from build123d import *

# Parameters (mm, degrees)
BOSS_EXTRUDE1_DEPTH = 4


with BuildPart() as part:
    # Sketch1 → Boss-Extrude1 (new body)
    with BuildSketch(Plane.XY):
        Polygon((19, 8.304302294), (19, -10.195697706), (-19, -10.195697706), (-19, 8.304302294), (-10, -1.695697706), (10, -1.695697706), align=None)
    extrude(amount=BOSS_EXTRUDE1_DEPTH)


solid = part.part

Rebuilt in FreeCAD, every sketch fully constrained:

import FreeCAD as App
import Part
import Sketcher
from FreeCAD import Vector


def add_polygon(sketch, points):
    """Adds a closed chain of lines whose ends are joined by coincident constraints."""
    first, n = sketch.GeometryCount, len(points)
    for a, b in zip(points, points[1:] + points[:1]):
        sketch.addGeometry(Part.LineSegment(App.Vector(*a, 0), App.Vector(*b, 0)), False)
    for i in range(n):
        sketch.addConstraint(Sketcher.Constraint("Coincident", first + i, 2, first + (i + 1) % n, 1))

doc = App.newDocument("Part")
body = doc.addObject("PartDesign::Body", "Body")

# Sketch on XY plane
sketch1 = body.newObject("Sketcher::SketchObject", "Sketch")
sketch1.AttachmentSupport = (doc.getObject("XY_Plane"), [""])
sketch1.MapMode = "FlatFace"
add_polygon(sketch1, [(19, -10), (19, 8), (10, -2), (-10, -2), (-19, 8), (-19, -10)])  # lines 0-5
sketch1.addConstraint([
    Sketcher.Constraint("Vertical", 0),
    Sketcher.Constraint("Horizontal", 2),
    Sketcher.Constraint("Vertical", 4),
    Sketcher.Constraint("Horizontal", 5),
    Sketcher.Constraint("Symmetric", 0, 2, 3, 2, -2),
    Sketcher.Constraint("Equal", 1, 3),
    Sketcher.Constraint("DistanceX", 2, 2, 2, 1, 20.0),
    Sketcher.Constraint("DistanceX", 5, 1, 5, 2, 38.0),
    Sketcher.Constraint("DistanceY", 0, 1, 0, 2, 18.5),
    Sketcher.Constraint("DistanceY", 1, 2, 0, 2, 10.0),
    Sketcher.Constraint("DistanceY", -1, 1, 0, 2, 8.304302),
])
pad1 = body.newObject("PartDesign::Pad", "Pad")
pad1.Profile = sketch1
pad1.Length = 4

doc.recompute()
